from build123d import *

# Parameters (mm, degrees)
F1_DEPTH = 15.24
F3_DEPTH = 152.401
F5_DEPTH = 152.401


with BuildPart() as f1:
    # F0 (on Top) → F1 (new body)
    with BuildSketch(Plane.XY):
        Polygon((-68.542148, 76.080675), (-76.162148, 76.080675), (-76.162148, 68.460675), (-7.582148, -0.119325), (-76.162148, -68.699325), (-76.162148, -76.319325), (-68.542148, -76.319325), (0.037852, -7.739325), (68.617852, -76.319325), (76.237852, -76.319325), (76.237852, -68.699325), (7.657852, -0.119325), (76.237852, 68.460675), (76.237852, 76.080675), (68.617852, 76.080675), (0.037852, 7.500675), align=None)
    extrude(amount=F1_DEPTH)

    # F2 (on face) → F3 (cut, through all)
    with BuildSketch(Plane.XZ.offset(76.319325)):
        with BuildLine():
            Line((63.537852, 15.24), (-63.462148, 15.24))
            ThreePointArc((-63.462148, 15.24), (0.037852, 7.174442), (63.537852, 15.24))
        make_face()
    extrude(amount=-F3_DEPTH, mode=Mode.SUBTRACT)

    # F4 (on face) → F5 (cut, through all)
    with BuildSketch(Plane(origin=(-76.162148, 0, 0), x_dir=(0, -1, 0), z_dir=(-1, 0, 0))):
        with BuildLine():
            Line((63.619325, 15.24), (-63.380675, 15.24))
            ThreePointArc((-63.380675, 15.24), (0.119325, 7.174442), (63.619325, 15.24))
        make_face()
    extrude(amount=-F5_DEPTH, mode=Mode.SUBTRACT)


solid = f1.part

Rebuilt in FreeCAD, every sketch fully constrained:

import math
import FreeCAD as App
import Part
import Sketcher
Q = App.Units.Quantity

doc = App.newDocument("Part")
body = doc.addObject("PartDesign::Body", "Body")

# Sketch on XY plane
sketch1 = body.newObject("Sketcher::SketchObject", "Sketch")
sketch1.AttachmentSupport = (doc.getObject("XY_Plane"), [""])
sketch1.MapMode = "FlatFace"
sketch1.addGeometry(Part.LineSegment(App.Vector(-69, 76, 0), App.Vector(-76, 76, 0)), False)
sketch1.addGeometry(Part.LineSegment(App.Vector(-76, 76, 0), App.Vector(-76, 68, 0)), False)
sketch1.addGeometry(Part.LineSegment(App.Vector(-76, 68, 0), App.Vector(-8, 0, 0)), False)
sketch1.addGeometry(Part.LineSegment(App.Vector(-8, 0, 0), App.Vector(-76, -69, 0)), False)
sketch1.addGeometry(Part.LineSegment(App.Vector(-76, -69, 0), App.Vector(-76, -76, 0)), False)
sketch1.addGeometry(Part.LineSegment(App.Vector(-76, -76, 0), App.Vector(-69, -76, 0)), False)
sketch1.addGeometry(Part.LineSegment(App.Vector(-69, -76, 0), App.Vector(0, -8, 0)), False)
sketch1.addGeometry(Part.LineSegment(App.Vector(0, -8, 0), App.Vector(69, -76, 0)), False)
sketch1.addGeometry(Part.LineSegment(App.Vector(69, -76, 0), App.Vector(76, -76, 0)), False)
sketch1.addGeometry(Part.LineSegment(App.Vector(76, -76, 0), App.Vector(76, -69, 0)), False)
sketch1.addGeometry(Part.LineSegment(App.Vector(76, -69, 0), App.Vector(8, 0, 0)), False)
sketch1.addGeometry(Part.LineSegment(App.Vector(8, 0, 0), App.Vector(76, 68, 0)), False)
sketch1.addGeometry(Part.LineSegment(App.Vector(76, 68, 0), App.Vector(76, 76, 0)), False)
sketch1.addGeometry(Part.LineSegment(App.Vector(76, 76, 0), App.Vector(69, 76, 0)), False)
sketch1.addGeometry(Part.LineSegment(App.Vector(69, 76, 0), App.Vector(0, 8, 0)), False)
sketch1.addGeometry(Part.LineSegment(App.Vector(0, 8, 0), App.Vector(-69, 76, 0)), False)
sketch1.addConstraint(Sketcher.Constraint("Coincident", 0, 2, 1, 1))
sketch1.addConstraint(Sketcher.Constraint("Coincident", 1, 2, 2, 1))
sketch1.addConstraint(Sketcher.Constraint("Coincident", 2, 2, 3, 1))
sketch1.addConstraint(Sketcher.Constraint("Coincident", 3, 2, 4, 1))
sketch1.addConstraint(Sketcher.Constraint("Coincident", 4, 2, 5, 1))
sketch1.addConstraint(Sketcher.Constraint("Coincident", 5, 2, 6, 1))
sketch1.addConstraint(Sketcher.Constraint("Coincident", 6, 2, 7, 1))
sketch1.addConstraint(Sketcher.Constraint("Coincident", 7, 2, 8, 1))
sketch1.addConstraint(Sketcher.Constraint("Coincident", 8, 2, 9, 1))
sketch1.addConstraint(Sketcher.Constraint("Coincident", 9, 2, 10, 1))
sketch1.addConstraint(Sketcher.Constraint("Coincident", 10, 2, 11, 1))
sketch1.addConstraint(Sketcher.Constraint("Coincident", 11, 2, 12, 1))
sketch1.addConstraint(Sketcher.Constraint("Coincident", 12, 2, 13, 1))
sketch1.addConstraint(Sketcher.Constraint("Coincident", 13, 2, 14, 1))
sketch1.addConstraint(Sketcher.Constraint("Coincident", 14, 2, 15, 1))
sketch1.addConstraint(Sketcher.Constraint("Coincident", 15, 2, 0, 1))
sketch1.addConstraint(Sketcher.Constraint("Horizontal", 0))
sketch1.addConstraint(Sketcher.Constraint("Vertical", 1))
sketch1.addConstraint(Sketcher.Constraint("Vertical", 4))
sketch1.addConstraint(Sketcher.Constraint("Horizontal", 5))
sketch1.addConstraint(Sketcher.Constraint("Horizontal", 8))
sketch1.addConstraint(Sketcher.Constraint("Vertical", 9))
sketch1.addConstraint(Sketcher.Constraint("Vertical", 12))
sketch1.addConstraint(Sketcher.Constraint("Horizontal", 13))
sketch1.addConstraint(Sketcher.Constraint("Perpendicular", 2, 3))
sketch1.addConstraint(Sketcher.Constraint("Parallel", 3, 6))
sketch1.addConstraint(Sketcher.Constraint("Perpendicular", 6, 7))
sketch1.addConstraint(Sketcher.Constraint("Parallel", 7, 10))
sketch1.addConstraint(Sketcher.Constraint("Perpendicular", 10, 11))
sketch1.addConstraint(Sketcher.Constraint("Parallel", 11, 14))
sketch1.addConstraint(Sketcher.Constraint("Perpendicular", 14, 15))
sketch1.addConstraint(Sketcher.Constraint("Horizontal", 5, 2, 7, 2))
sketch1.addConstraint(Sketcher.Constraint("Horizontal", 3, 2, 9, 2))
sketch1.addConstraint(Sketcher.Constraint("Horizontal", 2, 2, 10, 2))
sketch1.addConstraint(Sketcher.Constraint("Horizontal", 1, 2, 11, 2))
sketch1.addConstraint(Sketcher.Constraint("Horizontal", 0, 2, 12, 2))
sketch1.addConstraint(Sketcher.Constraint("Vertical", 1, 2, 3, 2))
sketch1.addConstraint(Sketcher.Constraint("Vertical", 9, 2, 11, 2))
sketch1.addConstraint(Sketcher.Constraint("Vertical", 7, 2, 13, 2))
sketch1.addConstraint(Sketcher.Constraint("Vertical", 6, 2, 14, 2))
sketch1.addConstraint(Sketcher.Constraint("Equal", 5, 8))
sketch1.addConstraint(Sketcher.Constraint("Equal", 13, 1))
sketch1.addConstraint(Sketcher.Constraint("Equal", 1, 4))
sketch1.addConstraint(Sketcher.Constraint("Equal", 3, 6))
sketch1.addConstraint(Sketcher.Constraint("DistanceX", 0, 2, 0, 1, Q("0.3 in")))
sketch1.addConstraint(Sketcher.Constraint("DistanceY", 2, 2, 0, 2, Q("3 in")))
sketch1.addConstraint(Sketcher.Constraint("DistanceX", 0, 2, -1, 1, 76.162148))
sketch1.addConstraint(Sketcher.Constraint("DistanceY", -1, 1, 0, 2, 76.080675))
pad1 = body.newObject("PartDesign::Pad", "Pad")
pad1.Profile = sketch1
pad1.Length = Q("0.6 in")

# Sketch on XZ plane
sketch2 = body.newObject("Sketcher::SketchObject", "Sketch001")
sketch2.AttachmentSupport = (doc.getObject("XZ_Plane"), [""])
sketch2.MapMode = "FlatFace"
sketch2.AttachmentOffset = App.Placement(App.Vector(0, 0, 76.319325), App.Rotation())
sketch2.addGeometry(Part.LineSegment(App.Vector(64, 15, 0), App.Vector(-63, 15, 0)), False)
sketch2.addGeometry(Part.ArcOfCircle(Part.Circle(App.Vector(0, 261, 0), App.Vector(0, 0, 1), 254), math.radians(-104), math.radians(-76)), False)
sketch2.addConstraint(Sketcher.Constraint("Coincident", 0, 1, 1, 2))
sketch2.addConstraint(Sketcher.Constraint("Coincident", 1, 1, 0, 2))
sketch2.addConstraint(Sketcher.Constraint("Horizontal", 0))
sketch2.addConstraint(Sketcher.Constraint("DistanceX", 0, 2, 0, 1, Q("5 in")))
sketch2.addConstraint(Sketcher.Constraint("DistanceY", -1, 1, 0, 1, Q("0.6 in")))
sketch2.addConstraint(Sketcher.Constraint("Radius", 1, 253.999985))
sketch2.addConstraint(Sketcher.Constraint("DistanceX", -1, 1, 1, 3, 0.037852))
pocket1 = body.newObject("PartDesign::Pocket", "Pocket")
pocket1.Profile = sketch2
pocket1.Type = "ThroughAll"

# Sketch on YZ plane
sketch3 = body.newObject("Sketcher::SketchObject", "Sketch002")
sketch3.AttachmentSupport = (doc.getObject("YZ_Plane"), [""])
sketch3.MapMode = "FlatFace"
sketch3.AttachmentOffset = App.Placement(App.Vector(0, 0, -76.162148), App.Rotation())
sketch3.addGeometry(Part.LineSegment(App.Vector(-64, 15, 0), App.Vector(63, 15, 0)), False)
sketch3.addGeometry(Part.ArcOfCircle(Part.Circle(App.Vector(0, 261, 0), App.Vector(0, 0, 1), 254), math.radians(-104), math.radians(-76)), False)
sketch3.addConstraint(Sketcher.Constraint("Coincident", 0, 1, 1, 1))
sketch3.addConstraint(Sketcher.Constraint("Coincident", 1, 2, 0, 2))
sketch3.addConstraint(Sketcher.Constraint("Horizontal", 0))
sketch3.addConstraint(Sketcher.Constraint("DistanceX", 0, 1, 0, 2, Q("5 in")))
sketch3.addConstraint(Sketcher.Constraint("DistanceY", -1, 1, 0, 1, Q("0.6 in")))
sketch3.addConstraint(Sketcher.Constraint("Radius", 1, 253.999985))
sketch3.addConstraint(Sketcher.Constraint("DistanceX", 1, 3, -1, 1, 0.119325))
pocket2 = body.newObject("PartDesign::Pocket", "Pocket001")
pocket2.Profile = sketch3
pocket2.Type = "ThroughAll"
pocket2.Reversed = True

doc.recompute()
